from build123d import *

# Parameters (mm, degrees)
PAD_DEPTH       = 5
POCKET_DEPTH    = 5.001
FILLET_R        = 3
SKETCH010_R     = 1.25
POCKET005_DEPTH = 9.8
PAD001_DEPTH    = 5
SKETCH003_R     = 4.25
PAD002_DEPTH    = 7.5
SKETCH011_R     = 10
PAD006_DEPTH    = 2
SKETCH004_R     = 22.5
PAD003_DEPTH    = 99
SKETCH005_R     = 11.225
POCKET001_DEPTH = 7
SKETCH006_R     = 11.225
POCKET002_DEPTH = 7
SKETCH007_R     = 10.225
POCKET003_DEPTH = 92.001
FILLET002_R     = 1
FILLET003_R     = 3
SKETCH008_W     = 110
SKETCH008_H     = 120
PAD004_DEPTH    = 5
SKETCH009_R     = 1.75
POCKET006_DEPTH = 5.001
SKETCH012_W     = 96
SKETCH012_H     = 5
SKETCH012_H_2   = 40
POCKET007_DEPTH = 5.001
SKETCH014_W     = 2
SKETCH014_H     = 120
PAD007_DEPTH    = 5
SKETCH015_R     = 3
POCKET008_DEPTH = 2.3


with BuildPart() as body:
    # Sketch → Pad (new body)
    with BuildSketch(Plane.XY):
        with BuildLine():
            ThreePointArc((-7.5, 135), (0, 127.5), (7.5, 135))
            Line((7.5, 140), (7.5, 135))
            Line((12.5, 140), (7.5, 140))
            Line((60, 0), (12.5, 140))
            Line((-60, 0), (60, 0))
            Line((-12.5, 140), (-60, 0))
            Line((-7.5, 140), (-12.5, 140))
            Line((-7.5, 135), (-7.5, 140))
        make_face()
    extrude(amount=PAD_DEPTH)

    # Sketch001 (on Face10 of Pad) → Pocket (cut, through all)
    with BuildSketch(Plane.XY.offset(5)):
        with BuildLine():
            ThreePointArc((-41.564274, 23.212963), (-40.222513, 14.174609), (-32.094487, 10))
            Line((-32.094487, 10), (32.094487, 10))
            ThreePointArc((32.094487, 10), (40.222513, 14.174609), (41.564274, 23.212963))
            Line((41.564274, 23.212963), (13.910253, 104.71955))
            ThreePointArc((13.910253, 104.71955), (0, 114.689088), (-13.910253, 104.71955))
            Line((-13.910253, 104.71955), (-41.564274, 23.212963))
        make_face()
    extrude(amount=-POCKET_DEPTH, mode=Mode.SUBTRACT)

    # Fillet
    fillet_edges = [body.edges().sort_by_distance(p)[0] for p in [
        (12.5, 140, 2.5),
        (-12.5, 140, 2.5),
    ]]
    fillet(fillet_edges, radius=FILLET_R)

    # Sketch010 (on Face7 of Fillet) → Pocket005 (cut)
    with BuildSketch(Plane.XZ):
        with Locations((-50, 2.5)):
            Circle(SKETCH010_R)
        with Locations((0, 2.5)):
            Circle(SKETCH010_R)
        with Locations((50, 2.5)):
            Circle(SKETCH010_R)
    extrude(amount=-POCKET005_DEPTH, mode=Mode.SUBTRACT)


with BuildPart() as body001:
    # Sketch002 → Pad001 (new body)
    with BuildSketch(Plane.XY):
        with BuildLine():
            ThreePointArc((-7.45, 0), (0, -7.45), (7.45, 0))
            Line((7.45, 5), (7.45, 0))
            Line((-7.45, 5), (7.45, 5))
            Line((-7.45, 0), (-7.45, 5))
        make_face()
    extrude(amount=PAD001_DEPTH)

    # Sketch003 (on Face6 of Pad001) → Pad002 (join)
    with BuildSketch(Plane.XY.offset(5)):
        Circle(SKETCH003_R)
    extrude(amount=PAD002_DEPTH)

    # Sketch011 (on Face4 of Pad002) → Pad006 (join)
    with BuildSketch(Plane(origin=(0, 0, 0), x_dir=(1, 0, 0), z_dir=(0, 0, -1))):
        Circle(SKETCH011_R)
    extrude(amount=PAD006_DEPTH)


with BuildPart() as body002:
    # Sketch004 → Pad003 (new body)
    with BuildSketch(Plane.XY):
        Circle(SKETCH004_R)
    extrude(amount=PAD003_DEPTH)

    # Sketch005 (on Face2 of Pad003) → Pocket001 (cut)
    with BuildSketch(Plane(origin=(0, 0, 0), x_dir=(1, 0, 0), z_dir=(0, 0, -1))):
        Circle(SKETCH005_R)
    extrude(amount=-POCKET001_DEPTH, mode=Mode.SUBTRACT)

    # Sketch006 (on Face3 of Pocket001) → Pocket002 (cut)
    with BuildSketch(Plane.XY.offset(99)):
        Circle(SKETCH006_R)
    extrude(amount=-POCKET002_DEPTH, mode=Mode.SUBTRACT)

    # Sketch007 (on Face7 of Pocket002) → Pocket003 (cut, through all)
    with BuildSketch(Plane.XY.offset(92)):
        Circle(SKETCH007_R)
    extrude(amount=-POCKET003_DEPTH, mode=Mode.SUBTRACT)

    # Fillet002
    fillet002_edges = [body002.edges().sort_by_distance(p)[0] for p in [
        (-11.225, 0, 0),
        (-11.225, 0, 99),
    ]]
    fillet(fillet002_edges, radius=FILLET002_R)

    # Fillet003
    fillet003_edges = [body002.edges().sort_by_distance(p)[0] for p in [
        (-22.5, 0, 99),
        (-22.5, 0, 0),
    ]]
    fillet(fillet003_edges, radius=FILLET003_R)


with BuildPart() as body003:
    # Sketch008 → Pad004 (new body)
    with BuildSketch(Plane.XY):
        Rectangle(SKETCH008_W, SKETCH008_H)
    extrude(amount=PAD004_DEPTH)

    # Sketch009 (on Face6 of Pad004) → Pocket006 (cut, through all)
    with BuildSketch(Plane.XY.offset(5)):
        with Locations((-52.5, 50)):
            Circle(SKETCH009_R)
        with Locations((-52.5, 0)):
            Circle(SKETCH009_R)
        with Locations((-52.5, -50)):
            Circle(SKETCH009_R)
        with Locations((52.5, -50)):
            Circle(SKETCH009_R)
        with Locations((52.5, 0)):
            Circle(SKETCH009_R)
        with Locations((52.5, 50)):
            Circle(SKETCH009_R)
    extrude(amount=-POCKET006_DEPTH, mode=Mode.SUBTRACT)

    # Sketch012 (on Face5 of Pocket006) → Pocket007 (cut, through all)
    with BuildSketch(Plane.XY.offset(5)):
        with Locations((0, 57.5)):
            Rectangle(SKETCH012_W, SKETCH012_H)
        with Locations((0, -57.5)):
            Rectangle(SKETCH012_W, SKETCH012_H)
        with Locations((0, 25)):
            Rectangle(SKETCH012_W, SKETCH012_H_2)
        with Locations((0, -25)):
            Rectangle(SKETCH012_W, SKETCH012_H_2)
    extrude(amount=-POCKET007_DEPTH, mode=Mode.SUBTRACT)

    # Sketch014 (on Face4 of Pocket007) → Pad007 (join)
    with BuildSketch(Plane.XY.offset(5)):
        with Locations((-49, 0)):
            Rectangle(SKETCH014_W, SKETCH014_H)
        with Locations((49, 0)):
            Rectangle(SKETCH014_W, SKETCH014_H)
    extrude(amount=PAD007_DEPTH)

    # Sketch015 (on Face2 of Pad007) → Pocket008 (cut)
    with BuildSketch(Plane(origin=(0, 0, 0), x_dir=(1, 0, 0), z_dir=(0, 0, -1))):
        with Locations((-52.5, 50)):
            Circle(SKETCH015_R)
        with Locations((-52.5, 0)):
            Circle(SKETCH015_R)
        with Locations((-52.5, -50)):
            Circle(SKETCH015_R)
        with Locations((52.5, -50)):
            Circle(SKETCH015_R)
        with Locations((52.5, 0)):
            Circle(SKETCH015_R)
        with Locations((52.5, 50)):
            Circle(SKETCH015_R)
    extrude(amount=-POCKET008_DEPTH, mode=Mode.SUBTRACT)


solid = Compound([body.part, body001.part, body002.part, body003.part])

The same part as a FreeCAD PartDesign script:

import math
import FreeCAD as App
import Part
import Sketcher

V = App.Vector
Q = App.Units.Quantity


def edges_at(feature, points):
    """Names of the edges that pass closest to the given points."""
    edges = feature.Shape.Edges
    near = lambda p: min(range(len(edges)), key=lambda i: edges[i].distToShape(Part.Vertex(*p))[0])
    return sorted({f"Edge{near(p) + 1}" for p in points})

doc = App.newDocument("Part")
params = doc.addObject("Spreadsheet::Sheet", "Params")
for row, (alias, value) in enumerate([
    ("sketch1_radius", "7.5 mm"),
    ("sketch1_width", "5 mm"),
    ("sketch1_width2", "120 mm"),
    ("pad1_length", "5 mm"),
    ("sketch2_radius", "10.000001 mm"),
    ("fillet_radius", "3 mm"),
    ("sketch3_diameter", "2.5 mm"),
    ("pocket2_length", "9.8 mm"),
    ("sketch4_height", "5 mm"),
    ("sketch4_radius", "7.45 mm"),
    ("pad2_length", "5 mm"),
    ("sketch5_diameter", "8.5 mm"),
    ("pad3_length", "7.5 mm"),
    ("sketch6_diameter", "20 mm"),
    ("pad4_length", "2 mm"),
    ("sketch7_diameter", "45 mm"),
    ("pad5_length", "99 mm"),
    ("sketch8_diameter", "22.45 mm"),
    ("pocket3_length", "7 mm"),
    ("sketch9_diameter", "22.45 mm"),
    ("pocket4_length", "7 mm"),
    ("sketch10_diameter", "20.45 mm"),
    ("fillet2_radius", "1 mm"),
    ("fillet3_radius", "3 mm"),
    ("sketch11_width", "110 mm"),
    ("sketch11_height", "120 mm"),
    ("pad6_length", "5 mm"),
    ("sketch12_diameter", "3.5 mm"),
    ("sketch13_width", "96 mm"),
    ("sketch13_height", "5 mm"),
    ("sketch13_height2", "40 mm"),
    ("sketch14_width", "2 mm"),
    ("sketch14_height", "120 mm"),
    ("pad7_length", "5 mm"),
    ("sketch15_diameter", "6 mm"),
    ("pocket8_length", "2.3 mm"),
], start=1):
    params.set(f"A{row}", alias)
    params.set(f"B{row}", "=" + value)
    params.setAlias(f"B{row}", alias)

body = doc.addObject("PartDesign::Body", "Body")

sketch1 = body.newObject("Sketcher::SketchObject", "Sketch")
sketch1.AttachmentSupport = (doc.getObject("XY_Plane"), [""])
sketch1.MapMode = "FlatFace"
sketch1.addGeometry([
    Part.ArcOfCircle(Part.Circle(V(0, 135, 0), V(0, 0, 1), 8), math.radians(180), math.radians(360)),
    Part.LineSegment(V(-8, 135, 0), V(-8, 140, 0)),
    Part.LineSegment(V(-8, 140, 0), V(-12, 140, 0)),
    Part.LineSegment(V(-12, 140, 0), V(-60, 0, 0)),
    Part.LineSegment(V(-60, 0, 0), V(60, 0, 0)),
    Part.LineSegment(V(60, 0, 0), V(12, 140, 0)),
    Part.LineSegment(V(12, 140, 0), V(8, 140, 0)),
    Part.LineSegment(V(8, 140, 0), V(8, 135, 0)),
], False)
sketch1.addConstraint([
    Sketcher.Constraint("Tangent", 0, 1, 1, 1),
    Sketcher.Constraint("Coincident", 1, 2, 2, 1),
    Sketcher.Constraint("Coincident", 2, 2, 3, 1),
    Sketcher.Constraint("Coincident", 3, 2, 4, 1),
    Sketcher.Constraint("Coincident", 4, 2, 5, 1),
    Sketcher.Constraint("Coincident", 5, 2, 6, 1),
    Sketcher.Constraint("Coincident", 6, 2, 7, 1),
    Sketcher.Constraint("Tangent", 7, 2, 0, 2),
    Sketcher.Constraint("Vertical", 1),
    Sketcher.Constraint("Horizontal", 2),
    Sketcher.Constraint("Horizontal", 4),
    Sketcher.Constraint("Horizontal", 6),
    Sketcher.Constraint("Vertical", 7),
    Sketcher.Constraint("Symmetric", 3, 2, 4, 2, -1, 1),
    Sketcher.Constraint("Symmetric", 2, 2, 5, 2, -2),
    Sketcher.Constraint("PointOnObject", 0, 3, -2),
    Sketcher.Constraint("Equal", 6, 1),
    Sketcher.Constraint("Radius", 0, Q("7.5 mm")),
    Sketcher.Constraint("DistanceX", 2, 2, 2, 1, Q("5 mm")),
    Sketcher.Constraint("DistanceX", 4, 1, 4, 2, Q("120 mm")),
    Sketcher.Constraint("DistanceY", -1, 1, 0, 3, Q("135 mm")),
])
sketch1.setExpression("Constraints[17]", "Params.sketch1_radius")
sketch1.setExpression("Constraints[18]", "Params.sketch1_width")
sketch1.setExpression("Constraints[19]", "Params.sketch1_width2")
pad1 = body.newObject("PartDesign::Pad", "Pad")
pad1.Profile = sketch1
pad1.setExpression("Length", "Params.pad1_length")

sketch2 = body.newObject("Sketcher::SketchObject", "Sketch001")
sketch2.AttachmentSupport = (doc.getObject("XY_Plane"), [""])
sketch2.MapMode = "FlatFace"
sketch2.AttachmentOffset = App.Placement(V(0, 0, 5), App.Rotation())
sketch2.addGeometry([
    Part.ArcOfCircle(Part.Circle(V(-32, 20, 0), V(0, 0, 1), 10), math.radians(161), math.radians(270)),
    Part.LineSegment(V(-32, 10, 0), V(32, 10, 0)),
    Part.ArcOfCircle(Part.Circle(V(32, 20, 0), V(0, 0, 1), 10), math.radians(-90), math.radians(19)),
    Part.LineSegment(V(42, 23, 0), V(14, 105, 0)),
    Part.ArcOfCircle(Part.Circle(V(0, 100, 0), V(0, 0, 1), 15), math.radians(19), math.radians(161)),
    Part.LineSegment(V(-14, 105, 0), V(-42, 23, 0)),
], False)
sketch2.addConstraint([
    Sketcher.Constraint("Tangent", 0, 2, 1, 1),
    Sketcher.Constraint("Tangent", 1, 2, 2, 1),
    Sketcher.Constraint("Tangent", 2, 2, 3, 1),
    Sketcher.Constraint("Tangent", 3, 2, 4, 1),
    Sketcher.Constraint("Tangent", 4, 2, 5, 1),
    Sketcher.Constraint("Tangent", 5, 2, 0, 1),
    Sketcher.Constraint("Horizontal", 1),
    Sketcher.Constraint("Equal", 0, 2),
    Sketcher.Constraint("Symmetric", 3, 2, 4, 2, -2),
    Sketcher.Constraint("Radius", 0, Q("10.000001 mm")),
    Sketcher.Constraint("DistanceY", -1, 1, 0, 3, Q("20.000001 mm")),
    Sketcher.Constraint("DistanceY", -1, 1, 4, 3, Q("100.000001 mm")),
    Sketcher.Constraint("Radius", 4, Q("14.689087 mm")),
    Sketcher.Constraint("DistanceX", 1, 1, 1, 2, Q("64.188974 mm")),
])
sketch2.setExpression("Constraints[9]", "Params.sketch2_radius")
pocket1 = body.newObject("PartDesign::Pocket", "Pocket")
pocket1.Profile = sketch2
pocket1.Type = "ThroughAll"
doc.recompute()

fillet = body.newObject("PartDesign::Fillet", "Fillet")
fillet.Base = (pocket1, edges_at(pocket1, [(12.5, 140, 2.5), (-12.5, 140, 2.5)]))
fillet.setExpression("Radius", "Params.fillet_radius")

sketch3 = body.newObject("Sketcher::SketchObject", "Sketch002")
sketch3.AttachmentSupport = (doc.getObject("XZ_Plane"), [""])
sketch3.MapMode = "FlatFace"
sketch3.addGeometry([
    Part.Circle(V(-50, 2.5, 0), V(0, 0, 1), 1.2),
    Part.Circle(V(0, 2.5, 0), V(0, 0, 1), 1.2),
    Part.Circle(V(50, 2.5, 0), V(0, 0, 1), 1.2),
], False)
sketch3.addConstraint([
    Sketcher.Constraint("Equal", 0, 1),
    Sketcher.Constraint("Equal", 1, 2),
    Sketcher.Constraint("Symmetric", 0, 3, 2, 3, -2),
    Sketcher.Constraint("PointOnObject", 1, 3, -2),
    Sketcher.Constraint("Horizontal", 0, 3, 1, 3),
    Sketcher.Constraint("Diameter", 0, Q("2.5 mm")),
    Sketcher.Constraint("DistanceX", 0, 3, -1, 1, Q("50 mm")),
    Sketcher.Constraint("DistanceY", -1, 1, 0, 3, Q("2.5 mm")),
])
sketch3.setExpression("Constraints[5]", "Params.sketch3_diameter")
pocket2 = body.newObject("PartDesign::Pocket", "Pocket001")
pocket2.Profile = sketch3
pocket2.setExpression("Length", "Params.pocket2_length")
body2 = doc.addObject("PartDesign::Body", "Body001")

sketch4 = body2.newObject("Sketcher::SketchObject", "Sketch003")
sketch4.AttachmentSupport = (doc.getObject("XY_Plane001"), [""])
sketch4.MapMode = "FlatFace"
sketch4.addGeometry([
    Part.ArcOfCircle(Part.Circle(V(0, 0, 0), V(0, 0, 1), 7), math.radians(180), math.radians(360)),
    Part.LineSegment(V(7, 0, 0), V(7, 5, 0)),
    Part.LineSegment(V(7, 5, 0), V(-7, 5, 0)),
    Part.LineSegment(V(-7, 5, 0), V(-7, 0, 0)),
], False)
sketch4.addConstraint([
    Sketcher.Constraint("Tangent", 0, 2, 1, 1),
    Sketcher.Constraint("Coincident", 1, 2, 2, 1),
    Sketcher.Constraint("Coincident", 2, 2, 3, 1),
    Sketcher.Constraint("Tangent", 3, 2, 0, 1),
    Sketcher.Constraint("Vertical", 1),
    Sketcher.Constraint("Horizontal", 2),
    Sketcher.Constraint("Vertical", 3),
    Sketcher.Constraint("Coincident", 0, 3, -1, 1),
    Sketcher.Constraint("DistanceY", 1, 1, 1, 2, Q("5 mm")),
    Sketcher.Constraint("Radius", 0, Q("7.45 mm")),
])
sketch4.setExpression("Constraints[8]", "Params.sketch4_height")
sketch4.setExpression("Constraints[9]", "Params.sketch4_radius")
pad2 = body2.newObject("PartDesign::Pad", "Pad001")
pad2.Profile = sketch4
pad2.setExpression("Length", "Params.pad2_length")

sketch5 = body2.newObject("Sketcher::SketchObject", "Sketch004")
sketch5.AttachmentSupport = (doc.getObject("XY_Plane001"), [""])
sketch5.MapMode = "FlatFace"
sketch5.AttachmentOffset = App.Placement(V(0, 0, 5), App.Rotation())
sketch5.addGeometry(Part.Circle(V(0, 0, 0), V(0, 0, 1), 4.2), False)
sketch5.addConstraint([
    Sketcher.Constraint("Coincident", 0, 3, -1, 1),
    Sketcher.Constraint("Diameter", 0, Q("8.5 mm")),
])
sketch5.setExpression("Constraints[1]", "Params.sketch5_diameter")
pad3 = body2.newObject("PartDesign::Pad", "Pad002")
pad3.Profile = sketch5
pad3.setExpression("Length", "Params.pad3_length")

sketch6 = body2.newObject("Sketcher::SketchObject", "Sketch005")
sketch6.AttachmentSupport = (doc.getObject("XY_Plane001"), [""])
sketch6.MapMode = "FlatFace"
sketch6.addGeometry(Part.Circle(V(0, 0, 0), V(0, 0, 1), 10), False)
sketch6.addConstraint([
    Sketcher.Constraint("Coincident", 0, 3, -1, 1),
    Sketcher.Constraint("Diameter", 0, Q("20 mm")),
])
sketch6.setExpression("Constraints[1]", "Params.sketch6_diameter")
pad4 = body2.newObject("PartDesign::Pad", "Pad003")
pad4.Profile = sketch6
pad4.setExpression("Length", "Params.pad4_length")
pad4.Reversed = True
body3 = doc.addObject("PartDesign::Body", "Body002")

sketch7 = body3.newObject("Sketcher::SketchObject", "Sketch006")
sketch7.AttachmentSupport = (doc.getObject("XY_Plane002"), [""])
sketch7.MapMode = "FlatFace"
sketch7.addGeometry(Part.Circle(V(0, 0, 0), V(0, 0, 1), 22), False)
sketch7.addConstraint([
    Sketcher.Constraint("Coincident", 0, 3, -1, 1),
    Sketcher.Constraint("Diameter", 0, Q("45 mm")),
])
sketch7.setExpression("Constraints[1]", "Params.sketch7_diameter")
pad5 = body3.newObject("PartDesign::Pad", "Pad004")
pad5.Profile = sketch7
pad5.setExpression("Length", "Params.pad5_length")

sketch8 = body3.newObject("Sketcher::SketchObject", "Sketch007")
sketch8.AttachmentSupport = (doc.getObject("XY_Plane002"), [""])
sketch8.MapMode = "FlatFace"
sketch8.addGeometry(Part.Circle(V(0, 0, 0), V(0, 0, 1), 11), False)
sketch8.addConstraint([
    Sketcher.Constraint("Coincident", 0, 3, -1, 1),
    Sketcher.Constraint("Diameter", 0, Q("22.45 mm")),
])
sketch8.setExpression("Constraints[1]", "Params.sketch8_diameter")
pocket3 = body3.newObject("PartDesign::Pocket", "Pocket002")
pocket3.Profile = sketch8
pocket3.setExpression("Length", "Params.pocket3_length")
pocket3.Reversed = True

sketch9 = body3.newObject("Sketcher::SketchObject", "Sketch008")
sketch9.AttachmentSupport = (doc.getObject("XY_Plane002"), [""])
sketch9.MapMode = "FlatFace"
sketch9.AttachmentOffset = App.Placement(V(0, 0, 99), App.Rotation())
sketch9.addGeometry(Part.Circle(V(0, 0, 0), V(0, 0, 1), 11), False)
sketch9.addConstraint([
    Sketcher.Constraint("Coincident", 0, 3, -1, 1),
    Sketcher.Constraint("Diameter", 0, Q("22.45 mm")),
])
sketch9.setExpression("Constraints[1]", "Params.sketch9_diameter")
pocket4 = body3.newObject("PartDesign::Pocket", "Pocket003")
pocket4.Profile = sketch9
pocket4.setExpression("Length", "Params.pocket4_length")

sketch10 = body3.newObject("Sketcher::SketchObject", "Sketch009")
sketch10.AttachmentSupport = (doc.getObject("XY_Plane002"), [""])
sketch10.MapMode = "FlatFace"
sketch10.AttachmentOffset = App.Placement(V(0, 0, 92), App.Rotation())
sketch10.addGeometry(Part.Circle(V(0, 0, 0), V(0, 0, 1), 10), False)
sketch10.addConstraint([
    Sketcher.Constraint("Coincident", 0, 3, -1, 1),
    Sketcher.Constraint("Diameter", 0, Q("20.45 mm")),
])
sketch10.setExpression("Constraints[1]", "Params.sketch10_diameter")
pocket5 = body3.newObject("PartDesign::Pocket", "Pocket004")
pocket5.Profile = sketch10
pocket5.Type = "ThroughAll"
doc.recompute()

fillet2 = body3.newObject("PartDesign::Fillet", "Fillet001")
fillet2.Base = (pocket5, edges_at(pocket5, [(-11.225, 0, 0), (-11.225, 0, 99)]))
fillet2.setExpression("Radius", "Params.fillet2_radius")
doc.recompute()

fillet3 = body3.newObject("PartDesign::Fillet", "Fillet002")
fillet3.Base = (fillet2, edges_at(fillet2, [(-22.5, 0, 99), (-22.5, 0, 0)]))
fillet3.setExpression("Radius", "Params.fillet3_radius")
body4 = doc.addObject("PartDesign::Body", "Body003")

sketch11 = body4.newObject("Sketcher::SketchObject", "Sketch010")
sketch11.AttachmentSupport = (doc.getObject("XY_Plane003"), [""])
sketch11.MapMode = "FlatFace"
sketch11.addGeometry([
    Part.LineSegment(V(-55, 60, 0), V(-55, -60, 0)),
    Part.LineSegment(V(-55, -60, 0), V(55, -60, 0)),
    Part.LineSegment(V(55, -60, 0), V(55, 60, 0)),
    Part.LineSegment(V(55, 60, 0), V(-55, 60, 0)),
], False)
sketch11.addConstraint([
    Sketcher.Constraint("Coincident", 0, 2, 1, 1),
    Sketcher.Constraint("Coincident", 1, 2, 2, 1),
    Sketcher.Constraint("Coincident", 2, 2, 3, 1),
    Sketcher.Constraint("Coincident", 3, 2, 0, 1),
    Sketcher.Constraint("Vertical", 0),
    Sketcher.Constraint("Horizontal", 1),
    Sketcher.Constraint("Vertical", 2),
    Sketcher.Constraint("Horizontal", 3),
    Sketcher.Constraint("Symmetric", 0, 2, 2, 2, -1, 1),
    Sketcher.Constraint("DistanceX", 1, 1, 1, 2, Q("110 mm")),
    Sketcher.Constraint("DistanceY", 0, 2, 0, 1, Q("120 mm")),
])
sketch11.setExpression("Constraints[9]", "Params.sketch11_width")
sketch11.setExpression("Constraints[10]", "Params.sketch11_height")
pad6 = body4.newObject("PartDesign::Pad", "Pad005")
pad6.Profile = sketch11
pad6.setExpression("Length", "Params.pad6_length")

sketch12 = body4.newObject("Sketcher::SketchObject", "Sketch011")
sketch12.AttachmentSupport = (doc.getObject("XY_Plane003"), [""])
sketch12.MapMode = "FlatFace"
sketch12.AttachmentOffset = App.Placement(V(0, 0, 5), App.Rotation())
sketch12.addGeometry([
    Part.Circle(V(-52.5, 50, 0), V(0, 0, 1), 1.8),
    Part.Circle(V(-52.5, 0, 0), V(0, 0, 1), 1.8),
    Part.Circle(V(-52.5, -50, 0), V(0, 0, 1), 1.8),
    Part.Circle(V(52.5, -50, 0), V(0, 0, 1), 1.8),
    Part.Circle(V(52.5, 0, 0), V(0, 0, 1), 1.8),
    Part.Circle(V(52.5, 50, 0), V(0, 0, 1), 1.8),
], False)
sketch12.addConstraint([
    Sketcher.Constraint("Equal", 0, 1),
    Sketcher.Constraint("Equal", 1, 2),
    Sketcher.Constraint("Equal", 2, 3),
    Sketcher.Constraint("Equal", 3, 4),
    Sketcher.Constraint("Equal", 4, 5),
    Sketcher.Constraint("Symmetric", 0, 3, 3, 3, -1, 1),
    Sketcher.Constraint("Symmetric", 1, 3, 4, 3, -1, 1),
    Sketcher.Constraint("Symmetric", 2, 3, 5, 3, -1, 1),
    Sketcher.Constraint("Symmetric", 2, 3, 3, 3, -2),
    Sketcher.Constraint("PointOnObject", 1, 3, -1),
    Sketcher.Constraint("Vertical", 0, 3, 1, 3),
    Sketcher.Constraint("Diameter", 0, Q("3.5 mm")),
    Sketcher.Constraint("DistanceY", -1, 1, 0, 3, Q("50 mm")),
    Sketcher.Constraint("DistanceX", 2, 3, 3, 3, Q("105 mm")),
])
sketch12.setExpression("Constraints[11]", "Params.sketch12_diameter")
pocket6 = body4.newObject("PartDesign::Pocket", "Pocket005")
pocket6.Profile = sketch12
pocket6.Type = "ThroughAll"

sketch13 = body4.newObject("Sketcher::SketchObject", "Sketch012")
sketch13.AttachmentSupport = (doc.getObject("XY_Plane003"), [""])
sketch13.MapMode = "FlatFace"
sketch13.AttachmentOffset = App.Placement(V(0, 0, 5), App.Rotation())
sketch13.addGeometry([
    Part.LineSegment(V(-48, 60, 0), V(-48, 55, 0)),
    Part.LineSegment(V(-48, 55, 0), V(48, 55, 0)),
    Part.LineSegment(V(48, 55, 0), V(48, 60, 0)),
    Part.LineSegment(V(48, 60, 0), V(-48, 60, 0)),
    Part.LineSegment(V(-48, -55, 0), V(-48, -60, 0)),
    Part.LineSegment(V(-48, -60, 0), V(48, -60, 0)),
    Part.LineSegment(V(48, -60, 0), V(48, -55, 0)),
    Part.LineSegment(V(48, -55, 0), V(-48, -55, 0)),
    Part.LineSegment(V(-48, 45, 0), V(-48, 5, 0)),
    Part.LineSegment(V(-48, 5, 0), V(48, 5, 0)),
    Part.LineSegment(V(48, 5, 0), V(48, 45, 0)),
    Part.LineSegment(V(48, 45, 0), V(-48, 45, 0)),
    Part.LineSegment(V(-48, -5, 0), V(-48, -45, 0)),
    Part.LineSegment(V(-48, -45, 0), V(48, -45, 0)),
    Part.LineSegment(V(48, -45, 0), V(48, -5, 0)),
    Part.LineSegment(V(48, -5, 0), V(-48, -5, 0)),
], False)
sketch13.addConstraint([
    Sketcher.Constraint("Coincident", 0, 2, 1, 1),
    Sketcher.Constraint("Coincident", 1, 2, 2, 1),
    Sketcher.Constraint("Coincident", 2, 2, 3, 1),
    Sketcher.Constraint("Coincident", 3, 2, 0, 1),
    Sketcher.Constraint("Coincident", 4, 2, 5, 1),
    Sketcher.Constraint("Coincident", 5, 2, 6, 1),
    Sketcher.Constraint("Coincident", 6, 2, 7, 1),
    Sketcher.Constraint("Coincident", 7, 2, 4, 1),
    Sketcher.Constraint("Coincident", 8, 2, 9, 1),
    Sketcher.Constraint("Coincident", 9, 2, 10, 1),
    Sketcher.Constraint("Coincident", 10, 2, 11, 1),
    Sketcher.Constraint("Coincident", 11, 2, 8, 1),
    Sketcher.Constraint("Coincident", 12, 2, 13, 1),
    Sketcher.Constraint("Coincident", 13, 2, 14, 1),
    Sketcher.Constraint("Coincident", 14, 2, 15, 1),
    Sketcher.Constraint("Coincident", 15, 2, 12, 1),
    Sketcher.Constraint("Vertical", 0),
    Sketcher.Constraint("Horizontal", 1),
    Sketcher.Constraint("Vertical", 2),
    Sketcher.Constraint("Horizontal", 3),
    Sketcher.Constraint("Vertical", 4),
    Sketcher.Constraint("Horizontal", 5),
    Sketcher.Constraint("Vertical", 6),
    Sketcher.Constraint("Horizontal", 7),
    Sketcher.Constraint("Vertical", 8),
    Sketcher.Constraint("Horizontal", 9),
    Sketcher.Constraint("Vertical", 10),
    Sketcher.Constraint("Horizontal", 11),
    Sketcher.Constraint("Vertical", 12),
    Sketcher.Constraint("Horizontal", 13),
    Sketcher.Constraint("Vertical", 14),
    Sketcher.Constraint("Horizontal", 15),
    Sketcher.Constraint("Symmetric", 2, 2, 4, 2, -1, 1),
    Sketcher.Constraint("Symmetric", 0, 2, 6, 2, -1, 1),
    Sketcher.Constraint("Symmetric", 10, 2, 12, 2, -1, 1),
    Sketcher.Constraint("Symmetric", 8, 2, 14, 2, -1, 1),
    Sketcher.Constraint("Vertical", 3, 2, 4, 2),
    Sketcher.Constraint("Vertical", 7, 2, 8, 2),
    Sketcher.Constraint("Vertical", 6, 2, 9, 2),
    Sketcher.Constraint("DistanceX", 1, 1, 1, 2, Q("96 mm")),
    Sketcher.Constraint("DistanceY", 0, 2, 0, 1, Q("5 mm")),
    Sketcher.Constraint("DistanceY", 8, 2, 8, 1, Q("40 mm")),
    Sketcher.Constraint("DistanceY", -1, 1, 0, 2, Q("55 mm")),
    Sketcher.Constraint("DistanceY", -1, 1, 8, 2, Q("5 mm")),
])
sketch13.setExpression("Constraints[39]", "Params.sketch13_width")
sketch13.setExpression("Constraints[40]", "Params.sketch13_height")
sketch13.setExpression("Constraints[41]", "Params.sketch13_height2")
pocket7 = body4.newObject("PartDesign::Pocket", "Pocket006")
pocket7.Profile = sketch13
pocket7.Type = "ThroughAll"

sketch14 = body4.newObject("Sketcher::SketchObject", "Sketch013")
sketch14.AttachmentSupport = (doc.getObject("XY_Plane003"), [""])
sketch14.MapMode = "FlatFace"
sketch14.AttachmentOffset = App.Placement(V(0, 0, 5), App.Rotation())
sketch14.addGeometry([
    Part.LineSegment(V(-50, 60, 0), V(-50, -60, 0)),
    Part.LineSegment(V(-50, -60, 0), V(-48, -60, 0)),
    Part.LineSegment(V(-48, -60, 0), V(-48, 60, 0)),
    Part.LineSegment(V(-48, 60, 0), V(-50, 60, 0)),
    Part.LineSegment(V(48, 60, 0), V(48, -60, 0)),
    Part.LineSegment(V(48, -60, 0), V(50, -60, 0)),
    Part.LineSegment(V(50, -60, 0), V(50, 60, 0)),
    Part.LineSegment(V(50, 60, 0), V(48, 60, 0)),
], False)
sketch14.addConstraint([
    Sketcher.Constraint("Coincident", 0, 2, 1, 1),
    Sketcher.Constraint("Coincident", 1, 2, 2, 1),
    Sketcher.Constraint("Coincident", 2, 2, 3, 1),
    Sketcher.Constraint("Coincident", 3, 2, 0, 1),
    Sketcher.Constraint("Coincident", 4, 2, 5, 1),
    Sketcher.Constraint("Coincident", 5, 2, 6, 1),
    Sketcher.Constraint("Coincident", 6, 2, 7, 1),
    Sketcher.Constraint("Coincident", 7, 2, 4, 1),
    Sketcher.Constraint("Vertical", 0),
    Sketcher.Constraint("Horizontal", 1),
    Sketcher.Constraint("Vertical", 2),
    Sketcher.Constraint("Horizontal", 3),
    Sketcher.Constraint("Vertical", 4),
    Sketcher.Constraint("Horizontal", 5),
    Sketcher.Constraint("Vertical", 6),
    Sketcher.Constraint("Horizontal", 7),
    Sketcher.Constraint("Symmetric", 2, 2, 4, 2, -1, 1),
    Sketcher.Constraint("Symmetric", 0, 2, 6, 2, -1, 1),
    Sketcher.Constraint("Horizontal", 1, 2, 4, 2),
    Sketcher.Constraint("DistanceX", 1, 1, 1, 2, Q("2 mm")),
    Sketcher.Constraint("DistanceY", 0, 2, 0, 1, Q("120 mm")),
    Sketcher.Constraint("DistanceX", 0, 2, -1, 1, Q("50 mm")),
])
sketch14.setExpression("Constraints[19]", "Params.sketch14_width")
sketch14.setExpression("Constraints[20]", "Params.sketch14_height")
pad7 = body4.newObject("PartDesign::Pad", "Pad006")
pad7.Profile = sketch14
pad7.setExpression("Length", "Params.pad7_length")

sketch15 = body4.newObject("Sketcher::SketchObject", "Sketch014")
sketch15.AttachmentSupport = (doc.getObject("XY_Plane003"), [""])
sketch15.MapMode = "FlatFace"
sketch15.addGeometry([
    Part.Circle(V(-52.5, -50, 0), V(0, 0, 1), 3),
    Part.Circle(V(-52.5, 0, 0), V(0, 0, 1), 3),
    Part.Circle(V(-52.5, 50, 0), V(0, 0, 1), 3),
    Part.Circle(V(52.5, 50, 0), V(0, 0, 1), 3),
    Part.Circle(V(52.5, 0, 0), V(0, 0, 1), 3),
    Part.Circle(V(52.5, -50, 0), V(0, 0, 1), 3),
], False)
sketch15.addConstraint([
    Sketcher.Constraint("Equal", 0, 1),
    Sketcher.Constraint("Equal", 1, 2),
    Sketcher.Constraint("Equal", 2, 3),
    Sketcher.Constraint("Equal", 3, 4),
    Sketcher.Constraint("Equal", 4, 5),
    Sketcher.Constraint("Symmetric", 0, 3, 3, 3, -1, 1),
    Sketcher.Constraint("Symmetric", 1, 3, 4, 3, -1, 1),
    Sketcher.Constraint("Symmetric", 2, 3, 5, 3, -1, 1),
    Sketcher.Constraint("Symmetric", 2, 3, 3, 3, -2),
    Sketcher.Constraint("PointOnObject", 1, 3, -1),
    Sketcher.Constraint("Vertical", 0, 3, 1, 3),
    Sketcher.Constraint("Diameter", 0, Q("6 mm")),
    Sketcher.Constraint("DistanceY", 0, 3, -1, 1, Q("50 mm")),
    Sketcher.Constraint("DistanceX", 2, 3, 3, 3, Q("105 mm")),
])
sketch15.setExpression("Constraints[11]", "Params.sketch15_diameter")
pocket8 = body4.newObject("PartDesign::Pocket", "Pocket007")
pocket8.Profile = sketch15
pocket8.setExpression("Length", "Params.pocket8_length")
pocket8.Reversed = True

doc.recompute()
